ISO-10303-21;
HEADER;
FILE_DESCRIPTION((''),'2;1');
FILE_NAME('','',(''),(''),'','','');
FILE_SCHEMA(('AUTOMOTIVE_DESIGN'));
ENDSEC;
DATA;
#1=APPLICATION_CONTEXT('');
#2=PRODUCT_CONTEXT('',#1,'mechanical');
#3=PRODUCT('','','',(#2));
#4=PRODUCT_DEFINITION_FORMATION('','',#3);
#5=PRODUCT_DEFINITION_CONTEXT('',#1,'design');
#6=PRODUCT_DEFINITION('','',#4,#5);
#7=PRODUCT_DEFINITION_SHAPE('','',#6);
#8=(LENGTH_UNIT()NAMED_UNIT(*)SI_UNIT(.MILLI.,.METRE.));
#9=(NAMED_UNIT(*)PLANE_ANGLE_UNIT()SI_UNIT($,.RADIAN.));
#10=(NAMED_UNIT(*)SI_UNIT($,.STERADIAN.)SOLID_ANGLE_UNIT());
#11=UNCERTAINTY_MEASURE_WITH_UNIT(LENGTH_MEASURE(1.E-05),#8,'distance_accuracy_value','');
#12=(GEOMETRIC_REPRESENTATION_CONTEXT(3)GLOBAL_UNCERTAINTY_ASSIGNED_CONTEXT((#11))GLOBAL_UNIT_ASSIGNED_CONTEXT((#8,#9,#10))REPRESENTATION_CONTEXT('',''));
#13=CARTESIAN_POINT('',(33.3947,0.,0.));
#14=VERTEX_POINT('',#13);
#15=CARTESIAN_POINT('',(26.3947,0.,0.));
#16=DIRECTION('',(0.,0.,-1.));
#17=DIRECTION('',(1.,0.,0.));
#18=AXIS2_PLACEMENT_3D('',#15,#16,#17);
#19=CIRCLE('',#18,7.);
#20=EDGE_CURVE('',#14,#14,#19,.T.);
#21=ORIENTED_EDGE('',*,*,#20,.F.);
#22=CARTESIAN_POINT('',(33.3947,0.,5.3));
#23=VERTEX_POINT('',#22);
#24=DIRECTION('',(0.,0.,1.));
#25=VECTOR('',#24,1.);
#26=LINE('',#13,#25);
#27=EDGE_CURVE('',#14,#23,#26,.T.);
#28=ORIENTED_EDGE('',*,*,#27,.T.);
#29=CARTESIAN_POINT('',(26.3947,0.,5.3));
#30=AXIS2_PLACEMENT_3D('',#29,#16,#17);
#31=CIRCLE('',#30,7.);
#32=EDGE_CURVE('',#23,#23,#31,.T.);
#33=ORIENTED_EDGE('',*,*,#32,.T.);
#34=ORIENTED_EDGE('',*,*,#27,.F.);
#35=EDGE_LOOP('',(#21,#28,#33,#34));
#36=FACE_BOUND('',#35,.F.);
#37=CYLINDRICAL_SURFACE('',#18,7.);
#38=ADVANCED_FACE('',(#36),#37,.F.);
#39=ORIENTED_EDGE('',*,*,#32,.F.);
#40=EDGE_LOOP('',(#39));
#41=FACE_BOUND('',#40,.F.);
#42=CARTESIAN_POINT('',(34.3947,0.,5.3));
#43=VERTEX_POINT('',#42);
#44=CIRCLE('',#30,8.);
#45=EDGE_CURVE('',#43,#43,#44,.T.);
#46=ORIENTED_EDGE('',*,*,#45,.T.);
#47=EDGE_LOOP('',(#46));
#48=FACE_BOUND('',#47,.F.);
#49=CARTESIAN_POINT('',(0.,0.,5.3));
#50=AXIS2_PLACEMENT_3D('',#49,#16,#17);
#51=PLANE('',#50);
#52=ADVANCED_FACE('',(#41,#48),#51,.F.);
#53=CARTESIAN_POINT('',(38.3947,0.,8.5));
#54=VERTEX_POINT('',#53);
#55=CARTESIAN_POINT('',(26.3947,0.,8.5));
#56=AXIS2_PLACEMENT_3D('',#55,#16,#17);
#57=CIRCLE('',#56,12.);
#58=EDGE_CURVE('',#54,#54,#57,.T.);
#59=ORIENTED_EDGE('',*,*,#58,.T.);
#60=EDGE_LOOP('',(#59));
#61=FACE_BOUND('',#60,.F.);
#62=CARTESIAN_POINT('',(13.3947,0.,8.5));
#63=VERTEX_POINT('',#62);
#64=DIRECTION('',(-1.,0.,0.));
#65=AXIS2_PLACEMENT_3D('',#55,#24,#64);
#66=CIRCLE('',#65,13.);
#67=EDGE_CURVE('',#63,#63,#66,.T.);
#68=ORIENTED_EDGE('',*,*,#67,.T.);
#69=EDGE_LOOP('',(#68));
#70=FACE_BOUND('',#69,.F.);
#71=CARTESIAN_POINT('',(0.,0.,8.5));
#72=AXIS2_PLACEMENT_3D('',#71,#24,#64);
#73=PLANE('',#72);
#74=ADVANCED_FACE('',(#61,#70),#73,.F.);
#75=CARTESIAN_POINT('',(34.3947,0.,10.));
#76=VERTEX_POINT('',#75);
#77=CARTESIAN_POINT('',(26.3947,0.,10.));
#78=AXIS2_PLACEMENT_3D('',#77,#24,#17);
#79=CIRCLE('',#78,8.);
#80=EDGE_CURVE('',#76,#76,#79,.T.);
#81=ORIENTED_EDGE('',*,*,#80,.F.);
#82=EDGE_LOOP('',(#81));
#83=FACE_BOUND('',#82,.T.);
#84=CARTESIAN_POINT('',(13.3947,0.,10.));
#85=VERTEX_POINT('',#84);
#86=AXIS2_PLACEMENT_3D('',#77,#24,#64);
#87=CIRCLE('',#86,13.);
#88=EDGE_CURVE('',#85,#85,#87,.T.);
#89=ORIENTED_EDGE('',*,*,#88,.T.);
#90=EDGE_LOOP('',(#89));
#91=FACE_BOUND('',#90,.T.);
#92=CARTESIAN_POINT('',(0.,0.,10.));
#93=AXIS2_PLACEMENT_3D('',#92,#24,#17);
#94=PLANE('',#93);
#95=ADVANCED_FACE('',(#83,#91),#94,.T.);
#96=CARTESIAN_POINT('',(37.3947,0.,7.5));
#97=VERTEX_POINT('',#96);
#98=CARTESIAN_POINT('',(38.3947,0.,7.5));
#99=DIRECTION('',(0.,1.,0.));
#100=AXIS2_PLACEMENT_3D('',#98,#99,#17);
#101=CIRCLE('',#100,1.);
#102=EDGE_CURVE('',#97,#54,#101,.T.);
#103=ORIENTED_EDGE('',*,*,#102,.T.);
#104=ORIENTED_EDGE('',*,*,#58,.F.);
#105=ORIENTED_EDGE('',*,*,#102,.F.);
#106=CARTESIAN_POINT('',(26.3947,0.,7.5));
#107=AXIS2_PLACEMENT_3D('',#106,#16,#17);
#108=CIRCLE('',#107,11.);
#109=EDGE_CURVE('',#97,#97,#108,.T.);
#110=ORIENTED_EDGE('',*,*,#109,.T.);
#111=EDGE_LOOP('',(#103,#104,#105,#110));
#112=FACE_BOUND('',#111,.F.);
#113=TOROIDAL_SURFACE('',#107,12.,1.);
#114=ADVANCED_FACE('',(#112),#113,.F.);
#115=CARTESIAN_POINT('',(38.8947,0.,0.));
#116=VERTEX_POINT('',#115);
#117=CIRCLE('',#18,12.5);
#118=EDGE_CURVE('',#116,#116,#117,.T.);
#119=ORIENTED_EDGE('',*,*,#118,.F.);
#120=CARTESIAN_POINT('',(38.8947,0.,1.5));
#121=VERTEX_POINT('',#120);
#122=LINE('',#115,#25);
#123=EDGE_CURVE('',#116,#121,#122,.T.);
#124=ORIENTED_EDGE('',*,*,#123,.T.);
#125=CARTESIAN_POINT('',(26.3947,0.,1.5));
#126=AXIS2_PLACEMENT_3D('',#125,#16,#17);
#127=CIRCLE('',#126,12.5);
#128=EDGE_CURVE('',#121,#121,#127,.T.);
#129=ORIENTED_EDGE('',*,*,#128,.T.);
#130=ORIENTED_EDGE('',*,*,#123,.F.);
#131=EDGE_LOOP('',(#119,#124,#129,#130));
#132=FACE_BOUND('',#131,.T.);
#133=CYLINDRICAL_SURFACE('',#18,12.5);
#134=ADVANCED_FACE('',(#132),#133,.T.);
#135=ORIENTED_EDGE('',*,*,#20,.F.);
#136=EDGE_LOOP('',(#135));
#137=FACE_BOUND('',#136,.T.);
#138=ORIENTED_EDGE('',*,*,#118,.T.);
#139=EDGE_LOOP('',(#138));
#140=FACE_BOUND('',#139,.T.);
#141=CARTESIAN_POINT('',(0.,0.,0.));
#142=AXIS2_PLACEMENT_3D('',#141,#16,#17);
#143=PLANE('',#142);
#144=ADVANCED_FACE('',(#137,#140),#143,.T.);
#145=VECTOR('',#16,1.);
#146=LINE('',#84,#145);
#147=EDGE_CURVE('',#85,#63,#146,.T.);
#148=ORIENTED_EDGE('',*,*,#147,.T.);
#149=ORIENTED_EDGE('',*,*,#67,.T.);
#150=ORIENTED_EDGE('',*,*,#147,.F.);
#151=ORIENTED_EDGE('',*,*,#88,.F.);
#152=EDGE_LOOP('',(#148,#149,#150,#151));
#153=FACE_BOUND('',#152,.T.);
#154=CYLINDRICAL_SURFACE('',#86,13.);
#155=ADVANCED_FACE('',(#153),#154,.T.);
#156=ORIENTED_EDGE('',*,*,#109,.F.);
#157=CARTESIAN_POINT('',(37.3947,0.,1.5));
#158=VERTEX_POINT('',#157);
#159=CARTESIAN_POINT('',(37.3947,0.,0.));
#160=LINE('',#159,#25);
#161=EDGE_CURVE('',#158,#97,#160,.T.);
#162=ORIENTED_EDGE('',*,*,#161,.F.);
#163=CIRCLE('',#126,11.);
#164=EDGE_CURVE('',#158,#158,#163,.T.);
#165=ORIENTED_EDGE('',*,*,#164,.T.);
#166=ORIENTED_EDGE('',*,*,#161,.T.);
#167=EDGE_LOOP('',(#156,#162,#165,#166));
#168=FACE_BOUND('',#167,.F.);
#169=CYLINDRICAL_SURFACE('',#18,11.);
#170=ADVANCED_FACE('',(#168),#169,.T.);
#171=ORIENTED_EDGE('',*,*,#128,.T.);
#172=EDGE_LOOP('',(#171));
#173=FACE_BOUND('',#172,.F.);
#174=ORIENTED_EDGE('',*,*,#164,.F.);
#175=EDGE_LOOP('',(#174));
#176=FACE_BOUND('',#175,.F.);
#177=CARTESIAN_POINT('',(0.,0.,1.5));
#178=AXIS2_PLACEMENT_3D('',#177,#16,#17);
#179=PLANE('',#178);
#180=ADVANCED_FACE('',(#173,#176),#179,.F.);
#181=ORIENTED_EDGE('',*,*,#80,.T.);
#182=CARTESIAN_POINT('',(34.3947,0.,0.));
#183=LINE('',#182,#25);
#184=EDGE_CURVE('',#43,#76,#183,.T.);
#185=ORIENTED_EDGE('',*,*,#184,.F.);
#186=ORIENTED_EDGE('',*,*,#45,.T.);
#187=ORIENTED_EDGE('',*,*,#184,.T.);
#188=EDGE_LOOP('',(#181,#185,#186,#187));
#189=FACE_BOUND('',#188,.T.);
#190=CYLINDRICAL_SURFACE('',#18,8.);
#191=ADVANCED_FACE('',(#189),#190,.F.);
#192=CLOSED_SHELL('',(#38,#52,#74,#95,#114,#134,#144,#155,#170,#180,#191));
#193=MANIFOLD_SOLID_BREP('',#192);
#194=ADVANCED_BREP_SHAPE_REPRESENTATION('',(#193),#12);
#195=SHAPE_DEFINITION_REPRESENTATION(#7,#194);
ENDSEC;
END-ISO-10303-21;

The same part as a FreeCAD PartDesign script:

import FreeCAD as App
import Part
import Sketcher
from FreeCAD import Vector
Q = App.Units.Quantity


def edges_at(feature, points):
    """Names of the edges that pass closest to the given points."""
    edges = feature.Shape.Edges
    near = lambda p: min(range(len(edges)), key=lambda i: edges[i].distToShape(Part.Vertex(*p))[0])
    return sorted({f"Edge{near(p) + 1}" for p in points})

doc = App.newDocument("Part")
body = doc.addObject("PartDesign::Body", "Body")

sketch1 = body.newObject("Sketcher::SketchObject", "Sketch")
sketch1.AttachmentSupport = (doc.getObject("XY_Plane"), [""])
sketch1.MapMode = "FlatFace"
sketch1.addGeometry(Part.Circle(Vector(26, 0, 0), Vector(0, 0, 1), 11), False)
sketch1.addGeometry(Part.Circle(Vector(26, 0, 0), Vector(0, 0, 1), 8), False)
sketch1.addConstraint(Sketcher.Constraint("Coincident", 1, 3, 0, 3))
sketch1.addConstraint(Sketcher.Constraint("PointOnObject", 0, 3, -1))
sketch1.addConstraint(Sketcher.Constraint("Diameter", 0, Q("22 mm")))
sketch1.addConstraint(Sketcher.Constraint("Diameter", 1, Q("16 mm")))
sketch1.addConstraint(Sketcher.Constraint("DistanceX", -1, 1, 0, 3, Q("26.3947 mm")))
pad1 = body.newObject("PartDesign::Pad", "Pad")
pad1.Profile = sketch1
pad1.Length = 10

sketch2 = body.newObject("Sketcher::SketchObject", "Sketch001")
sketch2.AttachmentSupport = (doc.getObject("XY_Plane"), [""])
sketch2.MapMode = "FlatFace"
sketch2.AttachmentOffset = App.Placement(Vector(0, 0, 10), App.Rotation())
sketch2.addGeometry(Part.Circle(Vector(26, 0, 0), Vector(0, 0, 1), 13), False)
sketch2.addGeometry(Part.Circle(Vector(26, 0, 0), Vector(0, 0, 1), 11), False)
sketch2.addConstraint(Sketcher.Constraint("Coincident", 1, 3, 0, 3))
sketch2.addConstraint(Sketcher.Constraint("PointOnObject", 0, 3, -1))
sketch2.addConstraint(Sketcher.Constraint("Diameter", 0, Q("26 mm")))
sketch2.addConstraint(Sketcher.Constraint("Diameter", 1, Q("22 mm")))
sketch2.addConstraint(Sketcher.Constraint("DistanceX", -1, 1, 0, 3, Q("26.3947 mm")))
pad2 = body.newObject("PartDesign::Pad", "Pad001")
pad2.Profile = sketch2
pad2.Length = 1.5
pad2.Reversed = True

sketch3 = body.newObject("Sketcher::SketchObject", "Sketch002")
sketch3.AttachmentSupport = (doc.getObject("XY_Plane"), [""])
sketch3.MapMode = "FlatFace"
sketch3.addGeometry(Part.Circle(Vector(26, 0, 0), Vector(0, 0, 1), 12), False)
sketch3.addGeometry(Part.Circle(Vector(26, 0, 0), Vector(0, 0, 1), 11), False)
sketch3.addConstraint(Sketcher.Constraint("Coincident", 1, 3, 0, 3))
sketch3.addConstraint(Sketcher.Constraint("PointOnObject", 0, 3, -1))
sketch3.addConstraint(Sketcher.Constraint("Diameter", 0, Q("25 mm")))
sketch3.addConstraint(Sketcher.Constraint("Diameter", 1, Q("22 mm")))
sketch3.addConstraint(Sketcher.Constraint("DistanceX", -1, 1, 0, 3, Q("26.3947 mm")))
pad3 = body.newObject("PartDesign::Pad", "Pad002")
pad3.Profile = sketch3
pad3.Length = 1.5
doc.recompute()

fillet = body.newObject("PartDesign::Fillet", "Fillet")
fillet.Base = (pad3, edges_at(pad3, [(16.139, 3.978, 8.5)]))
fillet.Radius = 1

sketch4 = body.newObject("Sketcher::SketchObject", "Sketch003")
sketch4.AttachmentSupport = (doc.getObject("XY_Plane"), [""])
sketch4.MapMode = "FlatFace"
sketch4.addGeometry(Part.Circle(Vector(26, 0, 0), Vector(0, 0, 1), 8), False)
sketch4.addGeometry(Part.Circle(Vector(26, 0, 0), Vector(0, 0, 1), 7), False)
sketch4.addConstraint(Sketcher.Constraint("Coincident", 1, 3, 0, 3))
sketch4.addConstraint(Sketcher.Constraint("PointOnObject", 0, 3, -1))
sketch4.addConstraint(Sketcher.Constraint("Diameter", 1, Q("14 mm")))
sketch4.addConstraint(Sketcher.Constraint("Diameter", 0, Q("16 mm")))
sketch4.addConstraint(Sketcher.Constraint("DistanceX", -1, 1, 0, 3, Q("26.3947 mm")))
pad4 = body.newObject("PartDesign::Pad", "Pad003")
pad4.Profile = sketch4
pad4.Length = 5.3

doc.recompute()
